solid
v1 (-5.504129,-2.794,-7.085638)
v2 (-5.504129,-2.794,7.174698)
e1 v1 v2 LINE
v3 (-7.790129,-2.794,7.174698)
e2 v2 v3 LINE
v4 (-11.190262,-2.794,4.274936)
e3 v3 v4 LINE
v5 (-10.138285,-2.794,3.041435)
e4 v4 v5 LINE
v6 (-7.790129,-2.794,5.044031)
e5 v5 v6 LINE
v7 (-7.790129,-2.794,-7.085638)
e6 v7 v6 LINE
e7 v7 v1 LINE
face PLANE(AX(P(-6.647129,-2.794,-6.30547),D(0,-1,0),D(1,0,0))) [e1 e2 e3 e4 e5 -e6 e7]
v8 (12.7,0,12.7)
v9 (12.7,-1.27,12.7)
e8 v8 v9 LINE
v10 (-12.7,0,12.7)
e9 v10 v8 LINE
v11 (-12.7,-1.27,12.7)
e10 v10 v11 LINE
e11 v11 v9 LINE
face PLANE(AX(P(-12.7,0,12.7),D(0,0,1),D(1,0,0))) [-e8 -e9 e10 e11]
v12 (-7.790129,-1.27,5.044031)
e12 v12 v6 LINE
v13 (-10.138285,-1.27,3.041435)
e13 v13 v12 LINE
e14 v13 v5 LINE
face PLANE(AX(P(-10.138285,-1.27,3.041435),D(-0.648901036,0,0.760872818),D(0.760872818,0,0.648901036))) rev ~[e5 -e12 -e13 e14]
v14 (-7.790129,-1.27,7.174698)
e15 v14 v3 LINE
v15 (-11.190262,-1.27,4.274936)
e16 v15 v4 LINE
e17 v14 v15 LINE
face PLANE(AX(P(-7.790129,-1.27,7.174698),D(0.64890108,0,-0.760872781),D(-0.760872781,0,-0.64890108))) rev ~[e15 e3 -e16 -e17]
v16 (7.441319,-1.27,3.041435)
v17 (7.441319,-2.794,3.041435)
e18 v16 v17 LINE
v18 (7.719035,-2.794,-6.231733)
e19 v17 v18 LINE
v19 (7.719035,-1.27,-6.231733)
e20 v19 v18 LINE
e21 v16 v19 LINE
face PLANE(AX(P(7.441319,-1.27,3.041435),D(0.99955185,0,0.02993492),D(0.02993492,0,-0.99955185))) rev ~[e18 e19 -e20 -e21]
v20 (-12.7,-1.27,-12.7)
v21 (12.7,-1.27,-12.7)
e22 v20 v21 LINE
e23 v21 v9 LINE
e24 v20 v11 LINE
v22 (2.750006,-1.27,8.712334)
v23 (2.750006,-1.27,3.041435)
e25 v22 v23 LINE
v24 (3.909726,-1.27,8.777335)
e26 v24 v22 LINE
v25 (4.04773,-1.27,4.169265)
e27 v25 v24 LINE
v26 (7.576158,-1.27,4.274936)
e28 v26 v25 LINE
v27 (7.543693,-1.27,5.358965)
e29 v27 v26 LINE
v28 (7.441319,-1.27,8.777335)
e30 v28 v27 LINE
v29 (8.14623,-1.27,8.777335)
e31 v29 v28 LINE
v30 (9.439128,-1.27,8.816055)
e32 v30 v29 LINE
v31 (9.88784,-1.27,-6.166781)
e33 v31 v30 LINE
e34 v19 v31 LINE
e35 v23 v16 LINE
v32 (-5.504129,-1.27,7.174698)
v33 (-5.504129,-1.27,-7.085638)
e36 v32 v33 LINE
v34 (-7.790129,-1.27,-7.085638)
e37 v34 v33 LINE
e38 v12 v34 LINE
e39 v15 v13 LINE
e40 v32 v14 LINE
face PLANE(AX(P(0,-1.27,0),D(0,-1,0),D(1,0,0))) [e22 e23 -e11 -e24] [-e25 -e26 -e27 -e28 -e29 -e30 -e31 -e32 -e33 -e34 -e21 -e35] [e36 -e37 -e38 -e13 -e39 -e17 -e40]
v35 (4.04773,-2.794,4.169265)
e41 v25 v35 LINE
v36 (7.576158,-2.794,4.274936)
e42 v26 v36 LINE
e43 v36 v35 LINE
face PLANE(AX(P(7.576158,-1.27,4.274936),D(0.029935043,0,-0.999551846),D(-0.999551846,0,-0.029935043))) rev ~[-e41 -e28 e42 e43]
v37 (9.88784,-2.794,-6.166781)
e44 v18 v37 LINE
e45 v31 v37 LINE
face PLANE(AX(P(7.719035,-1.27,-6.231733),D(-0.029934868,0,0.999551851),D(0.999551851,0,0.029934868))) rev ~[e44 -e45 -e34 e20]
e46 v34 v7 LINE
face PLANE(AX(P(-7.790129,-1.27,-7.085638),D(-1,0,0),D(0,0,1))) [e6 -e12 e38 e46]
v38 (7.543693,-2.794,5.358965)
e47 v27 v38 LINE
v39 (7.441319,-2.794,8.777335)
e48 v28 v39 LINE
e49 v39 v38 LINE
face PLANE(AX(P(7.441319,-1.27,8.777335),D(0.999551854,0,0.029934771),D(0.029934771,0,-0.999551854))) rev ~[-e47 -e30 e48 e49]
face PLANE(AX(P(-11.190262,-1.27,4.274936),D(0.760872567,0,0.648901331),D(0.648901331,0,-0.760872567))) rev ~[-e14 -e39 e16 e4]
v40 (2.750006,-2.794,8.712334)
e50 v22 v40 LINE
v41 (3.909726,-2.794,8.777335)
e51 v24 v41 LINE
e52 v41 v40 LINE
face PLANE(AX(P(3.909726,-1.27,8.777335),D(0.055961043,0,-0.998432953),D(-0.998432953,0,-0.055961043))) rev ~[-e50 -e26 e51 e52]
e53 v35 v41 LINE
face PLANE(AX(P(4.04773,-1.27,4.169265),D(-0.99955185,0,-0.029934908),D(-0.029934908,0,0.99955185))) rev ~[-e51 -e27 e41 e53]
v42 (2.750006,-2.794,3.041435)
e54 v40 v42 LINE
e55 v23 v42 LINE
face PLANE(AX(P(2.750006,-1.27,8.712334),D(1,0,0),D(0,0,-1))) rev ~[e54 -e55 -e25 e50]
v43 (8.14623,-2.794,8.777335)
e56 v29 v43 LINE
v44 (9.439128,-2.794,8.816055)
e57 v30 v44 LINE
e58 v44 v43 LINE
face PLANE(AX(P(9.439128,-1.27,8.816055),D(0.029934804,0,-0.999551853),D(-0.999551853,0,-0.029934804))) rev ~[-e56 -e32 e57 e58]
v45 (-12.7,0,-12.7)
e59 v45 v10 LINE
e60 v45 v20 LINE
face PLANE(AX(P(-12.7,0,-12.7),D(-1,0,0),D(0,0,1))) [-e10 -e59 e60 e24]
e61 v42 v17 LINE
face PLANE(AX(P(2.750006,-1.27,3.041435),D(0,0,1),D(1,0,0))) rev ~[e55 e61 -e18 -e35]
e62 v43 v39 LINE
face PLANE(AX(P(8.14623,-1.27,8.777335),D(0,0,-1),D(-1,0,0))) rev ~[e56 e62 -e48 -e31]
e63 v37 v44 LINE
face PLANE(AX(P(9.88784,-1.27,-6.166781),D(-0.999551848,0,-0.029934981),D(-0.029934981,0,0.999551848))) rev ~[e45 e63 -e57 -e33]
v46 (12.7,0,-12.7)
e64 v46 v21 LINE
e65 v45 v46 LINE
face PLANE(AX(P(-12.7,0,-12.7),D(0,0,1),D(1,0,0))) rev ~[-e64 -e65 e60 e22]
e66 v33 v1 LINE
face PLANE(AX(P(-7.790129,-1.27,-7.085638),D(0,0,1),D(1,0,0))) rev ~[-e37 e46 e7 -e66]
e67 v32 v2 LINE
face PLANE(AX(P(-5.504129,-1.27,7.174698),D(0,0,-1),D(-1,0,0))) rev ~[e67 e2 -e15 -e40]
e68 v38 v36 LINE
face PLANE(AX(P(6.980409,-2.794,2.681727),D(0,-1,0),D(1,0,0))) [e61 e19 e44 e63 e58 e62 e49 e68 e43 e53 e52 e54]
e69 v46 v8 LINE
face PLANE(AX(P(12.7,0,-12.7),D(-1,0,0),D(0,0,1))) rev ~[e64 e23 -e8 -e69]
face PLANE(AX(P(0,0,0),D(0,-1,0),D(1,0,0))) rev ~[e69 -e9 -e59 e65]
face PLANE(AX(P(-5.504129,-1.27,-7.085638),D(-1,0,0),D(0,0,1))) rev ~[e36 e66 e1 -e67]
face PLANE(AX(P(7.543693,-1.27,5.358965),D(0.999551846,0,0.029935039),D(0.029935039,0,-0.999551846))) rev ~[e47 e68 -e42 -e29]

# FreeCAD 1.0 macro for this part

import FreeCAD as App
import Part
import Sketcher
from FreeCAD import Vector
Q = App.Units.Quantity


def add_polygon(sketch, points):
    """Adds a closed chain of lines whose ends are joined by coincident constraints."""
    first, n = sketch.GeometryCount, len(points)
    for a, b in zip(points, points[1:] + points[:1]):
        sketch.addGeometry(Part.LineSegment(App.Vector(*a, 0), App.Vector(*b, 0)), False)
    for i in range(n):
        sketch.addConstraint(Sketcher.Constraint("Coincident", first + i, 2, first + (i + 1) % n, 1))

doc = App.newDocument("Part")
params = doc.addObject("Spreadsheet::Sheet", "Params")
for row, (alias, value) in enumerate([
    ("sketch1_width", "1 in"),
    ("pad1_length", "0.05 in"),
    ("sketch2_height", "0.5 in"),
    ("sketch2_width", "0.09 in"),
    ("pad2_length", "0.06 in"),
    ("sketch3_height", "0.5 in"),
    ("sketch3_width", "0.09 in"),
    ("sketch3_width2", "0.09 in"),
    ("pad3_length", "0.06 in"),
    ("sketch4_width", "0.09 in"),
    ("pad4_length", "0.06 in"),
], start=1):
    params.set(f"A{row}", alias)
    params.set(f"B{row}", "=" + value)
    params.setAlias(f"B{row}", alias)

body = doc.addObject("PartDesign::Body", "Body")

sketch1 = doc.addObject("Sketcher::SketchObject", "Sketch")
body.addObject(sketch1)
sketch1.AttachmentSupport = (doc.XZ_Plane, [""])
sketch1.MapMode = "FlatFace"
add_polygon(sketch1, [(-13, 13), (-13, -13), (13, -13), (13, 13)])
sketch1.addConstraint([
    Sketcher.Constraint("Vertical", 0),
    Sketcher.Constraint("Horizontal", 1),
    Sketcher.Constraint("Vertical", 2),
    Sketcher.Constraint("Horizontal", 3),
    Sketcher.Constraint("Symmetric", 0, 2, 2, 2, -1, 1),
    Sketcher.Constraint("Equal", 3, 0),
    Sketcher.Constraint("DistanceX", 1, 1, 1, 2, Q("1 in")),
])
sketch1.setExpression("Constraints[10]", "Params.sketch1_width")
pad1 = doc.addObject("PartDesign::Pad", "Pad")
body.addObject(pad1)
pad1.Profile = sketch1
pad1.setExpression("Length", "Params.pad1_length")

sketch2 = doc.addObject("Sketcher::SketchObject", "Sketch001")
body.addObject(sketch2)
sketch2.AttachmentSupport = (doc.XZ_Plane, [""])
sketch2.MapMode = "FlatFace"
sketch2.AttachmentOffset = App.Placement(Vector(0, 0, 0.05 * 25.4), App.Rotation())
add_polygon(sketch2, [(-10.1, 3), (-7.8, 5), (-7.8, -5.5), (-5.5, -5.5), (-5.5, 7.2), (-7.8, 7.2), (-11.2, 4.3)])
sketch2.addConstraint([
    Sketcher.Constraint("Vertical", 1),
    Sketcher.Constraint("Horizontal", 2),
    Sketcher.Constraint("Vertical", 3),
    Sketcher.Constraint("Horizontal", 4),
    Sketcher.Constraint("Parallel", 0, 5),
    Sketcher.Constraint("Perpendicular", 5, 6),
    Sketcher.Constraint("Vertical", 1, 2, 4, 2),
    Sketcher.Constraint("DistanceY", 3, 1, 3, 2, Q("0.5 in")),
    Sketcher.Constraint("DistanceX", 2, 1, 2, 2, Q("0.09 in")),
    Sketcher.Constraint("DistanceY", -1, 1, 3, 2, Q("7.174698 mm")),
    Sketcher.Constraint("DistanceY", 6, 2, 5, 2, Q("1.233501 mm")),
    Sketcher.Constraint("DistanceY", 1, 2, 1, 1, Q("10.569333 mm")),
    Sketcher.Constraint("DistanceX", 0, 2, -1, 1, Q("7.790129 mm")),
    Sketcher.Constraint("DistanceY", 5, 2, 4, 2, Q("2.899762 mm")),
])
sketch2.setExpression("Constraints[14]", "Params.sketch2_height")
sketch2.setExpression("Constraints[15]", "Params.sketch2_width")
pad2 = doc.addObject("PartDesign::Pad", "Pad001")
body.addObject(pad2)
pad2.Profile = sketch2
pad2.setExpression("Length", "Params.pad2_length")

sketch3 = doc.addObject("Sketcher::SketchObject", "Sketch002")
body.addObject(sketch3)
sketch3.AttachmentSupport = (doc.XZ_Plane, [""])
sketch3.MapMode = "FlatFace"
sketch3.AttachmentOffset = App.Placement(Vector(0, 0, 0.05 * 25.4), App.Rotation())
add_polygon(sketch3, [(-7.790129, -5.525302), (-5.504129, -5.525302), (-5.504129, 7.174698), (-7.790129, 7.174698), (-11.190262, 4.274936), (-10.138285, 3.041435), (-7.790129, 5.044031)])
add_polygon(sketch3, [(3.909726, 8.777335), (2.750006, 8.712334), (2.750006, 3.041435), (7.441319, 3.041435), (7.719035, -6.231733), (9.88784, -6.166781), (9.439128, 8.816055), (8.14623, 8.777335), (7.441319, 8.777335), (7.543693, 5.358965), (7.576158, 4.274936), (4.04773, 4.169265)])
sketch3.addConstraint([
    Sketcher.Constraint("Horizontal", 0),
    Sketcher.Constraint("Vertical", 1),
    Sketcher.Constraint("Horizontal", 2),
    Sketcher.Constraint("Vertical", 6),
    Sketcher.Constraint("Vertical", 8),
    Sketcher.Constraint("Horizontal", 9),
    Sketcher.Constraint("Horizontal", 14),
    Sketcher.Constraint("DistanceY", 1, 1, 1, 2, Q("0.5 in")),
    Sketcher.Constraint("DistanceX", 0, 1, 0, 2, Q("0.09 in")),
    Sketcher.Constraint("DistanceX", 2, 2, 2, 1, Q("0.09 in")),
    Sketcher.Constraint("DistanceY", 8, 2, 8, 1, Q("5.670899 mm")),
    Sketcher.Constraint("DistanceX", 14, 2, 14, 1, Q("0.704911 mm")),
    Sketcher.Constraint("DistanceY", -1, 1, 1, 2, Q("7.174698 mm")),
    Sketcher.Constraint("DistanceY", 4, 2, 3, 2, Q("1.233501 mm")),
    Sketcher.Constraint("DistanceY", 4, 2, 7, 2, Q("5.670899 mm")),
    Sketcher.Constraint("DistanceX", 13, 2, 12, 2, Q("1.292898 mm")),
    Sketcher.Constraint("DistanceY", 7, 2, 13, 2, Q("0.065001 mm")),
    Sketcher.Constraint("DistanceY", 9, 2, 16, 2, Q("1.233501 mm")),
    Sketcher.Constraint("DistanceY", 17, 2, 15, 2, Q("1.1897 mm")),
    Sketcher.Constraint("DistanceY", 7, 2, 18, 2, Q("0.065001 mm")),
    Sketcher.Constraint("Distance", 7, Q("1.16154 mm")),
    Sketcher.Constraint("Distance", 17, Q("3.53001 mm")),
    Sketcher.Constraint("DistanceX", 9, 1, 9, 2, Q("4.691313 mm")),
    Sketcher.Constraint("DistanceY", 6, 2, 6, 1, Q("10.569333 mm")),
    Sketcher.Constraint("DistanceX", 0, 2, -1, 1, Q("5.504129 mm")),
    Sketcher.Constraint("DistanceX", -1, 1, 9, 2, Q("7.441319 mm")),
    Sketcher.Constraint("DistanceX", -1, 1, 11, 2, Q("9.88784 mm")),
    Sketcher.Constraint("DistanceY", 11, 2, -1, 1, Q("6.166781 mm")),
    Sketcher.Constraint("DistanceX", -1, 1, 13, 2, Q("8.14623 mm")),
    Sketcher.Constraint("DistanceX", -1, 1, 16, 2, Q("7.576158 mm")),
    Sketcher.Constraint("DistanceX", -1, 1, 17, 2, Q("4.04773 mm")),
    Sketcher.Constraint("DistanceY", 3, 2, 2, 2, Q("2.899762 mm")),
    Sketcher.Constraint("DistanceX", 4, 2, 7, 2, Q("12.888291 mm")),
    Sketcher.Constraint("DistanceX", 8, 2, 10, 2, Q("4.969029 mm")),
    Sketcher.Constraint("DistanceY", 10, 2, 0, 2, Q("0.706431 mm")),
    Sketcher.Constraint("DistanceY", 9, 2, 12, 2, Q("5.77462 mm")),
    Sketcher.Constraint("Distance", 3, Q("4.468727 mm")),
    Sketcher.Constraint("Distance", 15, Q("3.419903 mm")),
])
sketch3.setExpression("Constraints[26]", "Params.sketch3_height")
sketch3.setExpression("Constraints[27]", "Params.sketch3_width")
sketch3.setExpression("Constraints[28]", "Params.sketch3_width2")
pad3 = doc.addObject("PartDesign::Pad", "Pad002")
body.addObject(pad3)
pad3.Profile = sketch3
pad3.setExpression("Length", "Params.pad3_length")

sketch4 = doc.addObject("Sketcher::SketchObject", "Sketch003")
body.addObject(sketch4)
sketch4.AttachmentSupport = (doc.XZ_Plane, [""])
sketch4.MapMode = "FlatFace"
sketch4.AttachmentOffset = App.Placement(Vector(0, 0, 0.05 * 25.4), App.Rotation())
add_polygon(sketch4, [(-7.8, -5.5), (-7.8, -7.1), (-5.5, -7.1), (-5.5, -5.5)])
sketch4.addConstraint([
    Sketcher.Constraint("Vertical", 0),
    Sketcher.Constraint("Horizontal", 1),
    Sketcher.Constraint("Vertical", 2),
    Sketcher.Constraint("Horizontal", 3),
    Sketcher.Constraint("DistanceX", 1, 1, 1, 2, Q("0.09 in")),
    Sketcher.Constraint("DistanceY", 0, 2, 0, 1, Q("1.560336 mm")),
    Sketcher.Constraint("DistanceX", 0, 2, -1, 1, Q("7.790129 mm")),
    Sketcher.Constraint("DistanceY", 0, 2, -1, 1, Q("7.085638 mm")),
])
sketch4.setExpression("Constraints[8]", "Params.sketch4_width")
pad4 = doc.addObject("PartDesign::Pad", "Pad003")
body.addObject(pad4)
pad4.Profile = sketch4
pad4.setExpression("Length", "Params.pad4_length")

doc.recompute()
